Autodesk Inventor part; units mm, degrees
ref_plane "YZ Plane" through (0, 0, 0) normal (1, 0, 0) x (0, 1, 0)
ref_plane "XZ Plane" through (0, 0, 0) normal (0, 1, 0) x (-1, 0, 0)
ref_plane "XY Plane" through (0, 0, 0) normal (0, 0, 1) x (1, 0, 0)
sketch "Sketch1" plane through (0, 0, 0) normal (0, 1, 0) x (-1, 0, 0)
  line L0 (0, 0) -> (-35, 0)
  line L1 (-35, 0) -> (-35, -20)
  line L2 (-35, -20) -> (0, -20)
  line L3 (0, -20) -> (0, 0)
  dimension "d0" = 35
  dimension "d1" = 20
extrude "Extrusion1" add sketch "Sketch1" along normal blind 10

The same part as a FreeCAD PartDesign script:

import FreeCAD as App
import Part
import Sketcher
Q = App.Units.Quantity


def add_polygon(sketch, points):
    """Adds a closed chain of lines whose ends are joined by coincident constraints."""
    first, n = sketch.GeometryCount, len(points)
    for a, b in zip(points, points[1:] + points[:1]):
        sketch.addGeometry(Part.LineSegment(App.Vector(*a, 0), App.Vector(*b, 0)), False)
    for i in range(n):
        sketch.addConstraint(Sketcher.Constraint("Coincident", first + i, 2, first + (i + 1) % n, 1))

doc = App.newDocument("Part")
params = doc.addObject("Spreadsheet::Sheet", "Params")
for row, (alias, value) in enumerate([
    ("sketch1_width", "35 mm"),
    ("sketch1_height", "20 mm"),
    ("pad1_length", "10 mm"),
], start=1):
    params.set(f"A{row}", alias)
    params.set(f"B{row}", "=" + value)
    params.setAlias(f"B{row}", alias)

body = doc.addObject("PartDesign::Body", "Body")

# Sketch on XZ plane
sketch1 = body.newObject("Sketcher::SketchObject", "Sketch")
sketch1.AttachmentSupport = (doc.getObject("XZ_Plane"), [""])
sketch1.MapMode = "FlatFace"
add_polygon(sketch1, [(0, -20), (0, 0), (35, 0), (35, -20)])  # lines 0-3
sketch1.addConstraint([
    Sketcher.Constraint("Vertical", 0),
    Sketcher.Constraint("Horizontal", 1),
    Sketcher.Constraint("Vertical", 2),
    Sketcher.Constraint("Horizontal", 3),
    Sketcher.Constraint("Coincident", 0, 2, -1, 1),
    Sketcher.Constraint("DistanceX", 1, 1, 1, 2, Q("35 mm")),
    Sketcher.Constraint("DistanceY", 0, 1, 0, 2, Q("20 mm")),
])
sketch1.setExpression("Constraints[9]", "Params.sketch1_width")
sketch1.setExpression("Constraints[10]", "Params.sketch1_height")
pad1 = body.newObject("PartDesign::Pad", "Pad")
pad1.Profile = sketch1
pad1.setExpression("Length", "Params.pad1_length")
pad1.Reversed = True

doc.recompute()
